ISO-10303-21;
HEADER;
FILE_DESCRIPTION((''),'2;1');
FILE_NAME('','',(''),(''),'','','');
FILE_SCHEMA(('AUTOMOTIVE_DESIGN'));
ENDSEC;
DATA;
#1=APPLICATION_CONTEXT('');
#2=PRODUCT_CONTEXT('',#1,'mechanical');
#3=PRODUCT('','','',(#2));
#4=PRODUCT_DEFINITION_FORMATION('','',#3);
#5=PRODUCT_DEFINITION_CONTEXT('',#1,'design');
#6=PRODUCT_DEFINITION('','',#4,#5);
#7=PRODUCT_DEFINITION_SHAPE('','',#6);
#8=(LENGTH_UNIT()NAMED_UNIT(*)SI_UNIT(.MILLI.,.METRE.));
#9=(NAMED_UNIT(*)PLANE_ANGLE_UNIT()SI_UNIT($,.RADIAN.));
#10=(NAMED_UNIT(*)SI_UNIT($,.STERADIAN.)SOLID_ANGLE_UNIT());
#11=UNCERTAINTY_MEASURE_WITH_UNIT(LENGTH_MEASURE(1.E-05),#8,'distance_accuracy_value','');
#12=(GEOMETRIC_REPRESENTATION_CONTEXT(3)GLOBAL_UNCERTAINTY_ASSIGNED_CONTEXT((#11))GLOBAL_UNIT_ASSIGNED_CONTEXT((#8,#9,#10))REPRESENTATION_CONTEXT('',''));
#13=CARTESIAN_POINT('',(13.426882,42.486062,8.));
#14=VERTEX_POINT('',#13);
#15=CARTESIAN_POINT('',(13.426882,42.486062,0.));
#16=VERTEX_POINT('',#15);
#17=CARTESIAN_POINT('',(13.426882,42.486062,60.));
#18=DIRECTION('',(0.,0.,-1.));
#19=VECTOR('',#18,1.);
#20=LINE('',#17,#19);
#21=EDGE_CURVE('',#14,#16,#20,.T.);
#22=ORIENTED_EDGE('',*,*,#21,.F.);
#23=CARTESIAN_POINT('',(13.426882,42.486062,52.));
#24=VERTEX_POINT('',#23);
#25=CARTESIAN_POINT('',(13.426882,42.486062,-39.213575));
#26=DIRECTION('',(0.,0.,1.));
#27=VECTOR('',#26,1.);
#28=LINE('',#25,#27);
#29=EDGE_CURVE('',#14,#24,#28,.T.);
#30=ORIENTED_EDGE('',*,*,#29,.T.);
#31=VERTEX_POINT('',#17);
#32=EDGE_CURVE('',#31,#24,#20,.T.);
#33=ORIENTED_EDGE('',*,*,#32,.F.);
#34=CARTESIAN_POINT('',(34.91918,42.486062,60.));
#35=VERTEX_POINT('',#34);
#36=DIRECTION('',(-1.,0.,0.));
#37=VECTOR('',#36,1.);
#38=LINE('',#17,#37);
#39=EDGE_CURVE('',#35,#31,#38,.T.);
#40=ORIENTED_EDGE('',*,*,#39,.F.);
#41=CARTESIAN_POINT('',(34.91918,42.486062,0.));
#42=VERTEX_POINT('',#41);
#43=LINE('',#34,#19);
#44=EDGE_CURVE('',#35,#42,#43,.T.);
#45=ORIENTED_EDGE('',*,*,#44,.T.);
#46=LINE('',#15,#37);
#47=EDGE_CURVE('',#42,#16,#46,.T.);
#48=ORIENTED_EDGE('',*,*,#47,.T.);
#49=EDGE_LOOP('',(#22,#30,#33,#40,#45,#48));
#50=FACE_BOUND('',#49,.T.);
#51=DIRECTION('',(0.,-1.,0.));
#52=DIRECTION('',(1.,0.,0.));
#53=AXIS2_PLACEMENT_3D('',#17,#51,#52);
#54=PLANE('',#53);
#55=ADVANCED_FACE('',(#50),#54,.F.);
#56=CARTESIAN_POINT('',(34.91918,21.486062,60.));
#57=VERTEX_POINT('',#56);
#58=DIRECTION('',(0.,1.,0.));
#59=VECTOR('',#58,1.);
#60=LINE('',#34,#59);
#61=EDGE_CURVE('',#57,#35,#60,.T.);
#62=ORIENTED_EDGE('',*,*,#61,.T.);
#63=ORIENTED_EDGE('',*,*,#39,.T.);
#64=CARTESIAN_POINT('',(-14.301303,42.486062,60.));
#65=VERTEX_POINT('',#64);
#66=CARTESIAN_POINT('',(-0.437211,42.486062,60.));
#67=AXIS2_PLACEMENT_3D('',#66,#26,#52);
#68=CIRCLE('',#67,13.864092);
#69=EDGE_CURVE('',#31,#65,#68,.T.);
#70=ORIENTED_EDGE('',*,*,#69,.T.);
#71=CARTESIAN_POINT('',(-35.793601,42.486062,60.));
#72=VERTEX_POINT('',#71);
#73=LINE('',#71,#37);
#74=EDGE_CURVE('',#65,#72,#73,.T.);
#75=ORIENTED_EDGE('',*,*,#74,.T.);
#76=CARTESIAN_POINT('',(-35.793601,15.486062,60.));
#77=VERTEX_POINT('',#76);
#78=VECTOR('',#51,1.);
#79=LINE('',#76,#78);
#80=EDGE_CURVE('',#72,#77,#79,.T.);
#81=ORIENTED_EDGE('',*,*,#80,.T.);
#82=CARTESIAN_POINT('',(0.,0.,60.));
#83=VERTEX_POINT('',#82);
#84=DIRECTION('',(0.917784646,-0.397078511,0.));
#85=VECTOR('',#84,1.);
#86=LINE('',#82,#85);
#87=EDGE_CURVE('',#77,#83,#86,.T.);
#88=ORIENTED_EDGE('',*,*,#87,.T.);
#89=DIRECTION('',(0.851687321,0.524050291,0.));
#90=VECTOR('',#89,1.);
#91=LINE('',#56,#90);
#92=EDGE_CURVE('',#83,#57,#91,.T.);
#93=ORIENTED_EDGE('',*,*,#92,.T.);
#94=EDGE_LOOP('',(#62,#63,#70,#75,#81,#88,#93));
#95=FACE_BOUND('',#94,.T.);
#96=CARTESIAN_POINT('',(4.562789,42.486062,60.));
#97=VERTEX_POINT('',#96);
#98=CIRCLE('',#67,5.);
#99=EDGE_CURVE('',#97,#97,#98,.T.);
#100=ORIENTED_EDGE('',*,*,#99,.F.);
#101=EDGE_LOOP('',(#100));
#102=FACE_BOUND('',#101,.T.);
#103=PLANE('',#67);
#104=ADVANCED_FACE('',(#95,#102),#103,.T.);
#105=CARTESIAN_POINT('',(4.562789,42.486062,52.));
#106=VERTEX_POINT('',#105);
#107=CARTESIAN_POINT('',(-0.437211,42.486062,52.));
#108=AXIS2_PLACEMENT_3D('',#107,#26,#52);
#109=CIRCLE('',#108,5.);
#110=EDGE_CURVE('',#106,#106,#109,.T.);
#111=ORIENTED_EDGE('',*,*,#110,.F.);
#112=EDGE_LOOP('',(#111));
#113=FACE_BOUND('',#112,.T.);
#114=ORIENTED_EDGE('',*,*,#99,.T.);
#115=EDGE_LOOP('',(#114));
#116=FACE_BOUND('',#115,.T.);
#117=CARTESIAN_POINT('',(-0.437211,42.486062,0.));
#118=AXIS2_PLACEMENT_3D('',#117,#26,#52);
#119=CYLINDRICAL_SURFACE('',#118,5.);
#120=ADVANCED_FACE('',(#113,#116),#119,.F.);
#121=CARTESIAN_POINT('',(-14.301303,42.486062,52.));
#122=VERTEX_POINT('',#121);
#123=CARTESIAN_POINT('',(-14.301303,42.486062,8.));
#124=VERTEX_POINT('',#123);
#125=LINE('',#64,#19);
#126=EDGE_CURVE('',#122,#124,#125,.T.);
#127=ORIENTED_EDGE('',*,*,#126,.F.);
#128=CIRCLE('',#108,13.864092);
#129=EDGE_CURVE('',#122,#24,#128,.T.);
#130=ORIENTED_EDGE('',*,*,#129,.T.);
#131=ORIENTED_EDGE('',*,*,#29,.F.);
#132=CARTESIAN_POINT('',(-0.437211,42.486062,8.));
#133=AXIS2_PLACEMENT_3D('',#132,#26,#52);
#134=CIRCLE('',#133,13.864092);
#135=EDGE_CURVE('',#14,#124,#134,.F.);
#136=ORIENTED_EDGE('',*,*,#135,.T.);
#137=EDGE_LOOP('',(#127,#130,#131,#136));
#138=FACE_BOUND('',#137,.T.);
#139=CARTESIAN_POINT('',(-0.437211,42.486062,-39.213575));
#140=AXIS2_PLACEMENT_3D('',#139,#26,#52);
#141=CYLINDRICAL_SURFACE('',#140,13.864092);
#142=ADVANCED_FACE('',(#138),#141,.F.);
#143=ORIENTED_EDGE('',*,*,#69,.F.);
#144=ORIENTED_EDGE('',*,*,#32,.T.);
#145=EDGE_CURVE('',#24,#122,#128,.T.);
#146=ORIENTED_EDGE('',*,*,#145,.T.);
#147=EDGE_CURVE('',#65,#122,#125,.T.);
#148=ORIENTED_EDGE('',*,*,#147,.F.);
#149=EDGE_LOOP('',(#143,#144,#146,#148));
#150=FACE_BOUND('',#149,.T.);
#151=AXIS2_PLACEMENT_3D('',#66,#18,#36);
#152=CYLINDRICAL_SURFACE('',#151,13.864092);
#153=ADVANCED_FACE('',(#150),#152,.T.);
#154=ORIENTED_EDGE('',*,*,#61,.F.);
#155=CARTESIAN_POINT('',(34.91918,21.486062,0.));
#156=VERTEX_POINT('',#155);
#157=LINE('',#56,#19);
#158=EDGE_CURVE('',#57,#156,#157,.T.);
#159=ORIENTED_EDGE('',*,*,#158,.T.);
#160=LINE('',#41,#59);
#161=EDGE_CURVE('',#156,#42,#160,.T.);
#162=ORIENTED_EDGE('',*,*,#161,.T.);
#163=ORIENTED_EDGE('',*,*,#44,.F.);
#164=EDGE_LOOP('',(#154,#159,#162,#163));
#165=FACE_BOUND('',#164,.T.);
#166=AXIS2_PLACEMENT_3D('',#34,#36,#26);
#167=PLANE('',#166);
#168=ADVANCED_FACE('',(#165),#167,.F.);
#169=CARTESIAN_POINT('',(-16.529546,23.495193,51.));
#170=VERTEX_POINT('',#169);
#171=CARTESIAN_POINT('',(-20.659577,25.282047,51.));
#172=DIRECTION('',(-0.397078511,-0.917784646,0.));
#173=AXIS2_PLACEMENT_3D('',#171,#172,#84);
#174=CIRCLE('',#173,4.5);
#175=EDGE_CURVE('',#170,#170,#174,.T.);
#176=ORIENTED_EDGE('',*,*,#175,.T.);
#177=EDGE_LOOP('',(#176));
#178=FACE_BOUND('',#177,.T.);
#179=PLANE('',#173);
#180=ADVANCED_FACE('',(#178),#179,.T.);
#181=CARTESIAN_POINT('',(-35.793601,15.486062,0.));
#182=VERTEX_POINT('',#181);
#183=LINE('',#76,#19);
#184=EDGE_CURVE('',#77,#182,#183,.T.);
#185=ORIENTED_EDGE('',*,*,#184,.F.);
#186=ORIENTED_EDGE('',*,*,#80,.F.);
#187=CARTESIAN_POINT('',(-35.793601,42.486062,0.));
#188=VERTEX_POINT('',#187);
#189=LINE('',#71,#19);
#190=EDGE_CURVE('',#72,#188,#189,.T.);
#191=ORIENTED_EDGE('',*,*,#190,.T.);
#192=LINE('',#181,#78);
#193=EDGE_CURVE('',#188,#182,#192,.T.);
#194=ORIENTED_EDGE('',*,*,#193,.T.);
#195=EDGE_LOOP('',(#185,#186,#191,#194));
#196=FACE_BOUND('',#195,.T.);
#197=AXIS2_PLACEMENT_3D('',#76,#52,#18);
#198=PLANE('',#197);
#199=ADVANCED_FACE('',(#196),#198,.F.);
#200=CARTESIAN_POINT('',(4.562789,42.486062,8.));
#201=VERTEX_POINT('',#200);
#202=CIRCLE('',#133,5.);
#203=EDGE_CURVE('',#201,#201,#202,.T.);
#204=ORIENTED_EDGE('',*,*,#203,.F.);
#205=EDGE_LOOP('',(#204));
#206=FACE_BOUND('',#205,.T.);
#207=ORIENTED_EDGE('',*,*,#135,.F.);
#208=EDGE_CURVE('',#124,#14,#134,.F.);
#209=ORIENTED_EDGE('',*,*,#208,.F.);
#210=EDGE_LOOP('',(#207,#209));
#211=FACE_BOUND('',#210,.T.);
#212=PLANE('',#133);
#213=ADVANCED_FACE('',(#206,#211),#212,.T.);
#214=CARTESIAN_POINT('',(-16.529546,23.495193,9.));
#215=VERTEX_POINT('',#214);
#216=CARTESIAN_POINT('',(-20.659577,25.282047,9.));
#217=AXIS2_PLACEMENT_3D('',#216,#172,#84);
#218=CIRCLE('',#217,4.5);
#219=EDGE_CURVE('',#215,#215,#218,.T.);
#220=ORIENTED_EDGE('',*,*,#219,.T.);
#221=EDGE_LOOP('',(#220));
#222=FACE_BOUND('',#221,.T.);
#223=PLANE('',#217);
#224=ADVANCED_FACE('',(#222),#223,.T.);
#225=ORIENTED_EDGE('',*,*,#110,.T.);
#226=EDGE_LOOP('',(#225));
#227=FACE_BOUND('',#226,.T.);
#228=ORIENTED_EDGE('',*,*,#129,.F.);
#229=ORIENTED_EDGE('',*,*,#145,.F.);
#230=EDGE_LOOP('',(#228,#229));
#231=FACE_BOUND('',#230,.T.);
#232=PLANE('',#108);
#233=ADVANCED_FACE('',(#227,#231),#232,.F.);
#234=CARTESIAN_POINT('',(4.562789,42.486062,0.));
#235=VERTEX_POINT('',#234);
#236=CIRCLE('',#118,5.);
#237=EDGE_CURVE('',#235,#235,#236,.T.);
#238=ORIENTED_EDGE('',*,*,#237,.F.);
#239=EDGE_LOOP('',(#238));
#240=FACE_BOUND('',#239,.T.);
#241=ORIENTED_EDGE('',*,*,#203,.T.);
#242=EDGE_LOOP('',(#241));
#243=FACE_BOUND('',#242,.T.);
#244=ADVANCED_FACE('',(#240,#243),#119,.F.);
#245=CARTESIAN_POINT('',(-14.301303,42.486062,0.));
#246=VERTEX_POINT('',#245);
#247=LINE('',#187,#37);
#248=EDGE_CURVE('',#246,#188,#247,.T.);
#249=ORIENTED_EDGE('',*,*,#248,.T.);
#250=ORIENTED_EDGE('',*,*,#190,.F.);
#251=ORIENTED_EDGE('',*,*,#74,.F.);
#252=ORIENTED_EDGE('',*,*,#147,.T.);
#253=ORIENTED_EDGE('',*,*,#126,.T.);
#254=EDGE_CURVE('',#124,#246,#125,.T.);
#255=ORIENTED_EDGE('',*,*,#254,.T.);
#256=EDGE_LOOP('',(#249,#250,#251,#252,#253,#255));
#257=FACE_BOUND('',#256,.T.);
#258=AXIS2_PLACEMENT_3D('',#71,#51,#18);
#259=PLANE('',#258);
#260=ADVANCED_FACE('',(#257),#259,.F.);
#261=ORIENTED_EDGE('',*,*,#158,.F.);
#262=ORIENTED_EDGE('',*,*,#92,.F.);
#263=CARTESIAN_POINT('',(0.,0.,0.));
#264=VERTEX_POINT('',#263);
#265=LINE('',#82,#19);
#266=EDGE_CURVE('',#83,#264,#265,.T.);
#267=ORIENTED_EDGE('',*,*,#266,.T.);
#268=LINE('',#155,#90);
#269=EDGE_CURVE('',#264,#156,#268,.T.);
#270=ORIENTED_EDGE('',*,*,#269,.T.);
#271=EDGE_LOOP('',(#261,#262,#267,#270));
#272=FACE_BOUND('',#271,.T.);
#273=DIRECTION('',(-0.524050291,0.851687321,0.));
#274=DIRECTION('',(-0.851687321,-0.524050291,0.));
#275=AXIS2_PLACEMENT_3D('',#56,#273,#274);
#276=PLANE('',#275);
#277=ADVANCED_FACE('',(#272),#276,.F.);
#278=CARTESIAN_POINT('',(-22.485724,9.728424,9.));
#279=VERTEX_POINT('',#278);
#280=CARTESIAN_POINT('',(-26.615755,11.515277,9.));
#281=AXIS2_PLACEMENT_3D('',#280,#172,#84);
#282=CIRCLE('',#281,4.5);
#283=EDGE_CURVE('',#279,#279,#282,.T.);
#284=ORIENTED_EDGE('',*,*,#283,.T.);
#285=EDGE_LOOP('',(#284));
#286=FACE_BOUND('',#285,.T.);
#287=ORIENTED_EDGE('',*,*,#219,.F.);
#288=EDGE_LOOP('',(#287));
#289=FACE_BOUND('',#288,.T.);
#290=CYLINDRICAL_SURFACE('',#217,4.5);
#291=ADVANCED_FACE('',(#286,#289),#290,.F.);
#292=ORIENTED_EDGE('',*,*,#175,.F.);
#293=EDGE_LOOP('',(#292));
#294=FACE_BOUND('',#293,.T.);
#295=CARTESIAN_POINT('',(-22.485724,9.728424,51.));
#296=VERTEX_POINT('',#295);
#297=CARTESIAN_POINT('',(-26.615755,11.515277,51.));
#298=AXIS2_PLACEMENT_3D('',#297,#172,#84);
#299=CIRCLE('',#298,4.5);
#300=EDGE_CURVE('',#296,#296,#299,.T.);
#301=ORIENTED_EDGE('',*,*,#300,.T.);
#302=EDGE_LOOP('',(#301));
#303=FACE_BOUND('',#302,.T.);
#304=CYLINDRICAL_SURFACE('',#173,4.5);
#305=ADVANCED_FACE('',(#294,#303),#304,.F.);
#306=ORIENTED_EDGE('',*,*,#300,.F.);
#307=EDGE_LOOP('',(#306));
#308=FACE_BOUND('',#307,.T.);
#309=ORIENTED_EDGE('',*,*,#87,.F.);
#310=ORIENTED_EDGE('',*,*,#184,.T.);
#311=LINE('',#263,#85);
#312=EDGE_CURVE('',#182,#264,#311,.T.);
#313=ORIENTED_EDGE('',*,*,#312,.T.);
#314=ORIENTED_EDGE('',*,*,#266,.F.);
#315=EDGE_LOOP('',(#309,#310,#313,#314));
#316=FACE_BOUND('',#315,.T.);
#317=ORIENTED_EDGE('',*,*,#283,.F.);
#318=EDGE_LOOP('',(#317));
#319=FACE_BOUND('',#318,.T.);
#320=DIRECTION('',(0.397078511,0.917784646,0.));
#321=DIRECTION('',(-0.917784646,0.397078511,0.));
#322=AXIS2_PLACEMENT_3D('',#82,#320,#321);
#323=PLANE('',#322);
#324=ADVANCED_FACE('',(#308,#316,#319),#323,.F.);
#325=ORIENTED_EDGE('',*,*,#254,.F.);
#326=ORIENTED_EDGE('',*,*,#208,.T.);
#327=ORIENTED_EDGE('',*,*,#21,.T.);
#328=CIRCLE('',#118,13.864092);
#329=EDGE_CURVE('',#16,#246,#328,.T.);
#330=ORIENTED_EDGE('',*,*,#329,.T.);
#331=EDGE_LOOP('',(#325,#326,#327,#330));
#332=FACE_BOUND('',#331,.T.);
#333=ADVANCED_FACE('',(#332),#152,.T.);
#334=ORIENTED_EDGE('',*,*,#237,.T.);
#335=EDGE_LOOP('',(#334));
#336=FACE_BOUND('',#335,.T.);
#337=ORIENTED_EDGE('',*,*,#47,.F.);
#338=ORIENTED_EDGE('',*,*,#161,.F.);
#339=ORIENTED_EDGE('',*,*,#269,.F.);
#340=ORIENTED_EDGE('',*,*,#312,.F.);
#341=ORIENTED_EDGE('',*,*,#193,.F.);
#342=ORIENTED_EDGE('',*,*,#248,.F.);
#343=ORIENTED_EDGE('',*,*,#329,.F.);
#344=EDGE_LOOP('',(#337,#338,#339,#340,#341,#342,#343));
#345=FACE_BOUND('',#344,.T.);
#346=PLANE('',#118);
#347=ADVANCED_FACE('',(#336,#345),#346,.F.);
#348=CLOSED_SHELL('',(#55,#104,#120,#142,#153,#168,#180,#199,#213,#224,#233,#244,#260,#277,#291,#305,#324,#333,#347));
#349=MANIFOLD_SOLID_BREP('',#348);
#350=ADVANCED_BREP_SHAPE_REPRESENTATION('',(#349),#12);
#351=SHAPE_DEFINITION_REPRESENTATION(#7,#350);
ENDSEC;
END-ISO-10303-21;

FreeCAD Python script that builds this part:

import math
import FreeCAD as App
import Part
import Sketcher
from FreeCAD import Vector
Q = App.Units.Quantity

doc = App.newDocument("Part")
body = doc.addObject("PartDesign::Body", "Body")

# Sketch on XY plane
sketch1 = body.newObject("Sketcher::SketchObject", "Sketch")
sketch1.AttachmentSupport = (doc.getObject("XY_Plane"), [""])
sketch1.MapMode = "FlatFace"
sketch1.addGeometry(Part.LineSegment(Vector(-35.793601, 15.486062, 0), Vector(0, 0, 0)), False)
sketch1.addGeometry(Part.LineSegment(Vector(0, 0, 0), Vector(34.91918, 21.486062, 0)), False)
sketch1.addGeometry(Part.LineSegment(Vector(34.91918, 21.486062, 0), Vector(34.91918, 42.486062, 0)), False)
sketch1.addGeometry(Part.LineSegment(Vector(34.91918, 42.486062, 0), Vector(13.426882, 42.486062, 0)), False)
sketch1.addGeometry(Part.ArcOfCircle(Part.Circle(Vector(-0.437211, 42.486062, 0), Vector(0, 0, 1), 13.864092), math.radians(0), math.radians(180)), False)
sketch1.addGeometry(Part.LineSegment(Vector(-14.301303, 42.486062, 0), Vector(-35.793601, 42.486062, 0)), False)
sketch1.addGeometry(Part.LineSegment(Vector(-35.793601, 42.486062, 0), Vector(-35.793601, 15.486062, 0)), False)
sketch1.addConstraint(Sketcher.Constraint("Coincident", 0, 2, 1, 1))
sketch1.addConstraint(Sketcher.Constraint("Coincident", 1, 2, 2, 1))
sketch1.addConstraint(Sketcher.Constraint("Coincident", 2, 2, 3, 1))
sketch1.addConstraint(Sketcher.Constraint("Coincident", 3, 2, 4, 1))
sketch1.addConstraint(Sketcher.Constraint("Coincident", 4, 2, 5, 1))
sketch1.addConstraint(Sketcher.Constraint("Coincident", 5, 2, 6, 1))
sketch1.addConstraint(Sketcher.Constraint("Coincident", 6, 2, 0, 1))
sketch1.addConstraint(Sketcher.Constraint("Vertical", 2))
sketch1.addConstraint(Sketcher.Constraint("Horizontal", 3))
sketch1.addConstraint(Sketcher.Constraint("Horizontal", 5))
sketch1.addConstraint(Sketcher.Constraint("Vertical", 6))
sketch1.addConstraint(Sketcher.Constraint("Coincident", 0, 2, -1, 1))
sketch1.addConstraint(Sketcher.Constraint("Horizontal", 4, 3, 2, 2))
sketch1.addConstraint(Sketcher.Constraint("Horizontal", 3, 2, 4, 2))
sketch1.addConstraint(Sketcher.Constraint("Equal", 3, 5))
sketch1.addConstraint(Sketcher.Constraint("DistanceY", 2, 1, 2, 2, Q("21 mm")))
sketch1.addConstraint(Sketcher.Constraint("DistanceY", 6, 2, 6, 1, Q("27 mm")))
sketch1.addConstraint(Sketcher.Constraint("Distance", 0, Q("39 mm")))
sketch1.addConstraint(Sketcher.Constraint("Distance", 1, Q("41 mm")))
sketch1.addConstraint(Sketcher.Constraint("DistanceX", 3, 2, 3, 1, Q("21.492298 mm")))
sketch1.addConstraint(Sketcher.Constraint("Radius", 4, Q("13.864092 mm")))
pad1 = body.newObject("PartDesign::Pad", "Pad")
pad1.Profile = sketch1
pad1.Length = 60

# Sketch on XY plane
sketch2 = body.newObject("Sketcher::SketchObject", "Sketch001")
sketch2.AttachmentSupport = (doc.getObject("XY_Plane"), [""])
sketch2.MapMode = "FlatFace"
sketch2.AttachmentOffset = App.Placement(Vector(0, 0, 8), App.Rotation())
sketch2.addGeometry(Part.Circle(Vector(-0.437211, 42.486062, 0), Vector(0, 0, 1), 13.864092), False)
sketch2.addConstraint(Sketcher.Constraint("Diameter", 0, Q("27.728185 mm")))
sketch2.addConstraint(Sketcher.Constraint("DistanceX", 0, 3, -1, 1, Q("0.437211 mm")))
sketch2.addConstraint(Sketcher.Constraint("DistanceY", -1, 1, 0, 3, Q("42.486062 mm")))
pocket1 = body.newObject("PartDesign::Pocket", "Pocket")
pocket1.Profile = sketch2
pocket1.Length = 44
pocket1.Reversed = True

# Sketch on XY plane
sketch3 = body.newObject("Sketcher::SketchObject", "Sketch002")
sketch3.AttachmentSupport = (doc.getObject("XY_Plane"), [""])
sketch3.MapMode = "FlatFace"
sketch3.AttachmentOffset = App.Placement(Vector(0, 0, 60), App.Rotation())
sketch3.addGeometry(Part.Circle(Vector(-0.437211, 42.486062, 0), Vector(0, 0, 1), 5), False)
sketch3.addConstraint(Sketcher.Constraint("Diameter", 0, Q("10 mm")))
sketch3.addConstraint(Sketcher.Constraint("DistanceX", 0, 3, -1, 1, Q("0.437211 mm")))
sketch3.addConstraint(Sketcher.Constraint("DistanceY", -1, 1, 0, 3, Q("42.486062 mm")))
pocket2 = body.newObject("PartDesign::Pocket", "Pocket001")
pocket2.Profile = sketch3
pocket2.Type = "ThroughAll"

# Sketch on an angled plane
sketch4 = body.newObject("Sketcher::SketchObject", "Sketch003")
sketch4.Placement = App.Placement(Vector(0, 0, 0), App.Rotation(Vector(0.917784646, -0.397078511, 0), Vector(0, 0, 1), Vector(-0.397078511, -0.917784646, 0), "ZXY"))
sketch4.addGeometry(Part.Circle(Vector(-29, 51, 0), Vector(0, 0, 1), 4.5), False)
sketch4.addGeometry(Part.Circle(Vector(-29, 9, 0), Vector(0, 0, 1), 4.5), False)
sketch4.addConstraint(Sketcher.Constraint("Equal", 0, 1))
sketch4.addConstraint(Sketcher.Constraint("Vertical", 0, 3, 1, 3))
sketch4.addConstraint(Sketcher.Constraint("Diameter", 0, Q("9 mm")))
sketch4.addConstraint(Sketcher.Constraint("DistanceX", 0, 3, -1, 1, Q("29 mm")))
sketch4.addConstraint(Sketcher.Constraint("DistanceY", -1, 1, 0, 3, Q("51 mm")))
sketch4.addConstraint(Sketcher.Constraint("DistanceY", -1, 1, 1, 3, Q("9 mm")))
pocket3 = body.newObject("PartDesign::Pocket", "Pocket002")
pocket3.Profile = sketch4
pocket3.Length = 15

doc.recompute()
